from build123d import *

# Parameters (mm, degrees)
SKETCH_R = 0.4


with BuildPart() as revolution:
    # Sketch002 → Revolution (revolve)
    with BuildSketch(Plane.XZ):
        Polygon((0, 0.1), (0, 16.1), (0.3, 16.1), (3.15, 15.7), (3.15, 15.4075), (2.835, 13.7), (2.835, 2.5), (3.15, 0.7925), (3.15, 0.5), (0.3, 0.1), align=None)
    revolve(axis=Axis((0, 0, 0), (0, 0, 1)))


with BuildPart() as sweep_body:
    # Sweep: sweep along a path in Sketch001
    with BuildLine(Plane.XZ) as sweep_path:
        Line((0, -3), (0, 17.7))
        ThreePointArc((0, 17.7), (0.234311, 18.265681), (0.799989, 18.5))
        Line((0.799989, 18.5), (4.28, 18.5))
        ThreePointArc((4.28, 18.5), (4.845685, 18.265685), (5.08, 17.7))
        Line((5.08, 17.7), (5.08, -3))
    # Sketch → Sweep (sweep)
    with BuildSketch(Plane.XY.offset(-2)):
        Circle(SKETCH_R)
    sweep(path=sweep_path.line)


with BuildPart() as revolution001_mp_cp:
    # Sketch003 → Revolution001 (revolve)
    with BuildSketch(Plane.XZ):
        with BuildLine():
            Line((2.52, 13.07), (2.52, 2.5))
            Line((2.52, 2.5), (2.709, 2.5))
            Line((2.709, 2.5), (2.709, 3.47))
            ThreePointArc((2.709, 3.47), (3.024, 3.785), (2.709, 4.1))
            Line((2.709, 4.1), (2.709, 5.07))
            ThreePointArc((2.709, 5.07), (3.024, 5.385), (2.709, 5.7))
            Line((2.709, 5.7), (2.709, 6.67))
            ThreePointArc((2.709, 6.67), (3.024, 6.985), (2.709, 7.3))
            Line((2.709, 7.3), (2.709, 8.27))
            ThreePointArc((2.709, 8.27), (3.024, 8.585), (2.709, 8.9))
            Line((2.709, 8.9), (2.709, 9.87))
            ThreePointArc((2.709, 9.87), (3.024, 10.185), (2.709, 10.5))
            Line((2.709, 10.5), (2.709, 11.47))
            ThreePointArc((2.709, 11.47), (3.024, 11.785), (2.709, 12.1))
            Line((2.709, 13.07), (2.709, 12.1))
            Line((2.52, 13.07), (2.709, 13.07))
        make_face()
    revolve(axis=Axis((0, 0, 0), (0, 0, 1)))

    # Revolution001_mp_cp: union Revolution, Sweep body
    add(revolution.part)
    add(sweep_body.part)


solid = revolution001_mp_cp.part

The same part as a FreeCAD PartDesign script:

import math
import FreeCAD as App
import Part
import Sketcher
from FreeCAD import Vector
Q = App.Units.Quantity


def add_polygon(sketch, points):
    """Adds a closed chain of lines whose ends are joined by coincident constraints."""
    first, n = sketch.GeometryCount, len(points)
    for a, b in zip(points, points[1:] + points[:1]):
        sketch.addGeometry(Part.LineSegment(App.Vector(*a, 0), App.Vector(*b, 0)), False)
    for i in range(n):
        sketch.addConstraint(Sketcher.Constraint("Coincident", first + i, 2, first + (i + 1) % n, 1))

doc = App.newDocument("Part")
body = doc.addObject("PartDesign::Body", "Body")

sketch1 = doc.addObject("Sketcher::SketchObject", "Sketch")
body.addObject(sketch1)
sketch1.AttachmentSupport = (doc.XZ_Plane, [""])
sketch1.MapMode = "FlatFace"
add_polygon(sketch1, [(0, 16.1), (0, 0.1), (0.3, 0.1), (3.15, 0.5), (3.15, 0.79), (2.83, 2.5), (2.83, 13.7), (3.15, 15.41), (3.15, 15.7), (0.3, 16.1)])
sketch1.addConstraint([
    Sketcher.Constraint("Vertical", 0),
    Sketcher.Constraint("Horizontal", 1),
    Sketcher.Constraint("Vertical", 3),
    Sketcher.Constraint("Vertical", 5),
    Sketcher.Constraint("Vertical", 7),
    Sketcher.Constraint("Horizontal", 9),
    Sketcher.Constraint("PointOnObject", 0, 2, -2),
    Sketcher.Constraint("Vertical", 3, 2, 6, 2),
    Sketcher.Constraint("Vertical", 1, 2, 8, 2),
    Sketcher.Constraint("Equal", 3, 7),
    Sketcher.Constraint("Equal", 4, 6),
    Sketcher.Constraint("Equal", 2, 8),
    Sketcher.Constraint("DistanceY", 0, 2, 0, 1, Q("16 mm")),
    Sketcher.Constraint("DistanceX", 1, 1, 1, 2, Q("0.3 mm")),
    Sketcher.Constraint("DistanceY", 5, 1, 5, 2, Q("11.2 mm")),
    Sketcher.Constraint("DistanceY", 2, 2, 4, 2, Q("2 mm")),
    Sketcher.Constraint("DistanceY", -1, 1, 0, 2, Q("0.1 mm")),
    Sketcher.Constraint("DistanceX", -1, 1, 2, 2, Q("3.15 mm")),
    Sketcher.Constraint("DistanceY", 3, 1, 3, 2, Q("0.2925 mm")),
    Sketcher.Constraint("DistanceX", -1, 1, 4, 2, Q("2.835 mm")),
])
revolution = doc.addObject("PartDesign::Revolution", "Revolution")
body.addObject(revolution)
revolution.Profile = sketch1
revolution.ReferenceAxis = (sketch1, ["V_Axis"])
revolution.Angle = 360
body2 = doc.addObject("PartDesign::Body", "Body001")

sketch2 = doc.addObject("Sketcher::SketchObject", "Sketch001")
body2.addObject(sketch2)
sketch2.AttachmentSupport = (doc.getObject("XY_Plane001"), [""])
sketch2.MapMode = "FlatFace"
sketch2.AttachmentOffset = App.Placement(Vector(0, 0, -2), App.Rotation())
sketch2.addGeometry(Part.Circle(Vector(0, 0, 0), Vector(0, 0, 1), 0.4), False)
sketch2.addConstraint([
    Sketcher.Constraint("Coincident", 0, 3, -1, 1),
    Sketcher.Constraint("Diameter", 0, Q("0.8 mm")),
])

sketch3 = doc.addObject("Sketcher::SketchObject", "Sketch002")
body2.addObject(sketch3)
sketch3.AttachmentSupport = (doc.getObject("XZ_Plane001"), [""])
sketch3.MapMode = "FlatFace"
sketch3.addGeometry([
    Part.LineSegment(Vector(0, -3, 0), Vector(0, 17.7, 0)),
    Part.ArcOfCircle(Part.Circle(Vector(0.8, 17.7, 0), Vector(0, 0, 1), 0.8), math.radians(90), math.radians(180)),
    Part.LineSegment(Vector(0.8, 18.5, 0), Vector(4.3, 18.5, 0)),
    Part.ArcOfCircle(Part.Circle(Vector(4.3, 17.7, 0), Vector(0, 0, 1), 0.8), math.radians(0), math.radians(90)),
    Part.LineSegment(Vector(5.1, 17.7, 0), Vector(5.1, -3, 0)),
], False)
sketch3.addConstraint([
    Sketcher.Constraint("Tangent", 0, 2, 1, 2),
    Sketcher.Constraint("Coincident", 1, 1, 2, 1),
    Sketcher.Constraint("Tangent", 2, 2, 3, 2),
    Sketcher.Constraint("Tangent", 3, 1, 4, 1),
    Sketcher.Constraint("Vertical", 0),
    Sketcher.Constraint("Horizontal", 2),
    Sketcher.Constraint("Vertical", 4),
    Sketcher.Constraint("Equal", 1, 3),
    Sketcher.Constraint("PointOnObject", 0, 1, -2),
    Sketcher.Constraint("Horizontal", 0, 1, 4, 2),
    Sketcher.Constraint("Radius", 1, Q("0.800001 mm")),
    Sketcher.Constraint("DistanceY", 0, 1, 0, 2, Q("20.7 mm")),
    Sketcher.Constraint("DistanceY", 0, 1, -1, 1, Q("3 mm")),
    Sketcher.Constraint("DistanceX", -1, 1, 3, 3, Q("4.279999 mm")),
    Sketcher.Constraint("DistanceX", 2, 1, 2, 2, Q("3.480011 mm")),
])
doc.recompute()

additivepipe = doc.addObject("PartDesign::AdditivePipe", "AdditivePipe")
body2.addObject(additivepipe)
additivepipe.Profile = sketch2
additivepipe.Spine = (sketch3, ["Edge1", "Edge2", "Edge3", "Edge4", "Edge5"])
body3 = doc.addObject("PartDesign::Body", "Body002")

sketch4 = doc.addObject("Sketcher::SketchObject", "Sketch003")
body3.addObject(sketch4)
sketch4.AttachmentSupport = (doc.getObject("XZ_Plane002"), [""])
sketch4.MapMode = "FlatFace"
sketch4.addGeometry([
    Part.LineSegment(Vector(2.52, 13.07, 0), Vector(2.52, 2.5, 0)),
    Part.LineSegment(Vector(2.52, 2.5, 0), Vector(2.71, 2.5, 0)),
    Part.LineSegment(Vector(2.71, 2.5, 0), Vector(2.71, 3.47, 0)),
    Part.ArcOfCircle(Part.Circle(Vector(2.71, 3.79, 0), Vector(0, 0, 1), 0.32), math.radians(-90), math.radians(90)),
    Part.LineSegment(Vector(2.71, 4.1, 0), Vector(2.71, 5.07, 0)),
    Part.ArcOfCircle(Part.Circle(Vector(2.71, 5.38, 0), Vector(0, 0, 1), 0.32), math.radians(-90), math.radians(90)),
    Part.LineSegment(Vector(2.71, 5.7, 0), Vector(2.71, 6.67, 0)),
    Part.ArcOfCircle(Part.Circle(Vector(2.71, 6.99, 0), Vector(0, 0, 1), 0.32), math.radians(-90), math.radians(90)),
    Part.LineSegment(Vector(2.71, 7.3, 0), Vector(2.71, 8.27, 0)),
    Part.ArcOfCircle(Part.Circle(Vector(2.71, 8.59, 0), Vector(0, 0, 1), 0.32), math.radians(-90), math.radians(90)),
    Part.LineSegment(Vector(2.71, 8.9, 0), Vector(2.71, 9.87, 0)),
    Part.ArcOfCircle(Part.Circle(Vector(2.71, 10.19, 0), Vector(0, 0, 1), 0.32), math.radians(-90), math.radians(90)),
    Part.LineSegment(Vector(2.71, 10.5, 0), Vector(2.71, 11.47, 0)),
    Part.ArcOfCircle(Part.Circle(Vector(2.71, 11.79, 0), Vector(0, 0, 1), 0.32), math.radians(-90), math.radians(90)),
    Part.LineSegment(Vector(2.71, 12.1, 0), Vector(2.71, 13.07, 0)),
    Part.LineSegment(Vector(2.71, 13.07, 0), Vector(2.52, 13.07, 0)),
], False)
sketch4.addConstraint([
    Sketcher.Constraint("Coincident", 0, 2, 1, 1),
    Sketcher.Constraint("Coincident", 1, 2, 2, 1),
    Sketcher.Constraint("Coincident", 2, 2, 3, 1),
    Sketcher.Constraint("Coincident", 3, 2, 4, 1),
    Sketcher.Constraint("Coincident", 4, 2, 5, 1),
    Sketcher.Constraint("Coincident", 5, 2, 6, 1),
    Sketcher.Constraint("Coincident", 6, 2, 7, 1),
    Sketcher.Constraint("Coincident", 7, 2, 8, 1),
    Sketcher.Constraint("Coincident", 8, 2, 9, 1),
    Sketcher.Constraint("Coincident", 9, 2, 10, 1),
    Sketcher.Constraint("Coincident", 10, 2, 11, 1),
    Sketcher.Constraint("Coincident", 11, 2, 12, 1),
    Sketcher.Constraint("Coincident", 12, 2, 13, 1),
    Sketcher.Constraint("Coincident", 13, 2, 14, 1),
    Sketcher.Constraint("Coincident", 14, 2, 15, 1),
    Sketcher.Constraint("Coincident", 15, 2, 0, 1),
    Sketcher.Constraint("Vertical", 0),
    Sketcher.Constraint("Horizontal", 1),
    Sketcher.Constraint("Vertical", 2),
    Sketcher.Constraint("Vertical", 4),
    Sketcher.Constraint("Vertical", 6),
    Sketcher.Constraint("Vertical", 8),
    Sketcher.Constraint("Vertical", 10),
    Sketcher.Constraint("Vertical", 12),
    Sketcher.Constraint("Vertical", 14),
    Sketcher.Constraint("Horizontal", 15),
    Sketcher.Constraint("Equal", 3, 5),
    Sketcher.Constraint("Equal", 5, 7),
    Sketcher.Constraint("Equal", 7, 9),
    Sketcher.Constraint("Equal", 9, 11),
    Sketcher.Constraint("Equal", 11, 13),
    Sketcher.Constraint("Vertical", 3, 3, 5, 3),
    Sketcher.Constraint("Vertical", 5, 3, 7, 3),
    Sketcher.Constraint("Vertical", 7, 3, 9, 3),
    Sketcher.Constraint("Vertical", 9, 3, 11, 3),
    Sketcher.Constraint("Vertical", 11, 3, 13, 3),
    Sketcher.Constraint("Vertical", 13, 3, 1, 2),
    Sketcher.Constraint("Vertical", 2, 2, 3, 2),
    Sketcher.Constraint("Vertical", 4, 2, 5, 2),
    Sketcher.Constraint("Vertical", 6, 2, 7, 2),
    Sketcher.Constraint("Vertical", 8, 2, 9, 2),
    Sketcher.Constraint("Vertical", 10, 2, 11, 2),
    Sketcher.Constraint("Vertical", 12, 2, 13, 2),
    Sketcher.Constraint("Equal", 2, 4),
    Sketcher.Constraint("Equal", 4, 6),
    Sketcher.Constraint("Equal", 6, 8),
    Sketcher.Constraint("Equal", 8, 10),
    Sketcher.Constraint("Equal", 10, 12),
    Sketcher.Constraint("Equal", 12, 14),
    Sketcher.Constraint("Radius", 3, Q("0.315 mm")),
    Sketcher.Constraint("DistanceY", 3, 3, 13, 3, Q("8 mm")),
    Sketcher.Constraint("DistanceY", -1, 1, 0, 2, Q("2.5 mm")),
    Sketcher.Constraint("DistanceX", 1, 1, 1, 2, Q("0.189 mm")),
    Sketcher.Constraint("DistanceX", -1, 1, 0, 2, Q("2.52 mm")),
])
revolution2 = doc.addObject("PartDesign::Revolution", "Revolution001")
body3.addObject(revolution2)
revolution2.Profile = sketch4
revolution2.ReferenceAxis = (sketch4, ["V_Axis"])
revolution2.Angle = 360
doc.recompute()

boolean = doc.addObject("PartDesign::Boolean", "Boolean")
body3.addObject(boolean)
boolean.Type = "Fuse"
boolean.addObjects([body])
doc.recompute()

boolean2 = doc.addObject("PartDesign::Boolean", "Boolean001")
body3.addObject(boolean2)
boolean2.Type = "Fuse"
boolean2.addObjects([body2])

doc.recompute()
